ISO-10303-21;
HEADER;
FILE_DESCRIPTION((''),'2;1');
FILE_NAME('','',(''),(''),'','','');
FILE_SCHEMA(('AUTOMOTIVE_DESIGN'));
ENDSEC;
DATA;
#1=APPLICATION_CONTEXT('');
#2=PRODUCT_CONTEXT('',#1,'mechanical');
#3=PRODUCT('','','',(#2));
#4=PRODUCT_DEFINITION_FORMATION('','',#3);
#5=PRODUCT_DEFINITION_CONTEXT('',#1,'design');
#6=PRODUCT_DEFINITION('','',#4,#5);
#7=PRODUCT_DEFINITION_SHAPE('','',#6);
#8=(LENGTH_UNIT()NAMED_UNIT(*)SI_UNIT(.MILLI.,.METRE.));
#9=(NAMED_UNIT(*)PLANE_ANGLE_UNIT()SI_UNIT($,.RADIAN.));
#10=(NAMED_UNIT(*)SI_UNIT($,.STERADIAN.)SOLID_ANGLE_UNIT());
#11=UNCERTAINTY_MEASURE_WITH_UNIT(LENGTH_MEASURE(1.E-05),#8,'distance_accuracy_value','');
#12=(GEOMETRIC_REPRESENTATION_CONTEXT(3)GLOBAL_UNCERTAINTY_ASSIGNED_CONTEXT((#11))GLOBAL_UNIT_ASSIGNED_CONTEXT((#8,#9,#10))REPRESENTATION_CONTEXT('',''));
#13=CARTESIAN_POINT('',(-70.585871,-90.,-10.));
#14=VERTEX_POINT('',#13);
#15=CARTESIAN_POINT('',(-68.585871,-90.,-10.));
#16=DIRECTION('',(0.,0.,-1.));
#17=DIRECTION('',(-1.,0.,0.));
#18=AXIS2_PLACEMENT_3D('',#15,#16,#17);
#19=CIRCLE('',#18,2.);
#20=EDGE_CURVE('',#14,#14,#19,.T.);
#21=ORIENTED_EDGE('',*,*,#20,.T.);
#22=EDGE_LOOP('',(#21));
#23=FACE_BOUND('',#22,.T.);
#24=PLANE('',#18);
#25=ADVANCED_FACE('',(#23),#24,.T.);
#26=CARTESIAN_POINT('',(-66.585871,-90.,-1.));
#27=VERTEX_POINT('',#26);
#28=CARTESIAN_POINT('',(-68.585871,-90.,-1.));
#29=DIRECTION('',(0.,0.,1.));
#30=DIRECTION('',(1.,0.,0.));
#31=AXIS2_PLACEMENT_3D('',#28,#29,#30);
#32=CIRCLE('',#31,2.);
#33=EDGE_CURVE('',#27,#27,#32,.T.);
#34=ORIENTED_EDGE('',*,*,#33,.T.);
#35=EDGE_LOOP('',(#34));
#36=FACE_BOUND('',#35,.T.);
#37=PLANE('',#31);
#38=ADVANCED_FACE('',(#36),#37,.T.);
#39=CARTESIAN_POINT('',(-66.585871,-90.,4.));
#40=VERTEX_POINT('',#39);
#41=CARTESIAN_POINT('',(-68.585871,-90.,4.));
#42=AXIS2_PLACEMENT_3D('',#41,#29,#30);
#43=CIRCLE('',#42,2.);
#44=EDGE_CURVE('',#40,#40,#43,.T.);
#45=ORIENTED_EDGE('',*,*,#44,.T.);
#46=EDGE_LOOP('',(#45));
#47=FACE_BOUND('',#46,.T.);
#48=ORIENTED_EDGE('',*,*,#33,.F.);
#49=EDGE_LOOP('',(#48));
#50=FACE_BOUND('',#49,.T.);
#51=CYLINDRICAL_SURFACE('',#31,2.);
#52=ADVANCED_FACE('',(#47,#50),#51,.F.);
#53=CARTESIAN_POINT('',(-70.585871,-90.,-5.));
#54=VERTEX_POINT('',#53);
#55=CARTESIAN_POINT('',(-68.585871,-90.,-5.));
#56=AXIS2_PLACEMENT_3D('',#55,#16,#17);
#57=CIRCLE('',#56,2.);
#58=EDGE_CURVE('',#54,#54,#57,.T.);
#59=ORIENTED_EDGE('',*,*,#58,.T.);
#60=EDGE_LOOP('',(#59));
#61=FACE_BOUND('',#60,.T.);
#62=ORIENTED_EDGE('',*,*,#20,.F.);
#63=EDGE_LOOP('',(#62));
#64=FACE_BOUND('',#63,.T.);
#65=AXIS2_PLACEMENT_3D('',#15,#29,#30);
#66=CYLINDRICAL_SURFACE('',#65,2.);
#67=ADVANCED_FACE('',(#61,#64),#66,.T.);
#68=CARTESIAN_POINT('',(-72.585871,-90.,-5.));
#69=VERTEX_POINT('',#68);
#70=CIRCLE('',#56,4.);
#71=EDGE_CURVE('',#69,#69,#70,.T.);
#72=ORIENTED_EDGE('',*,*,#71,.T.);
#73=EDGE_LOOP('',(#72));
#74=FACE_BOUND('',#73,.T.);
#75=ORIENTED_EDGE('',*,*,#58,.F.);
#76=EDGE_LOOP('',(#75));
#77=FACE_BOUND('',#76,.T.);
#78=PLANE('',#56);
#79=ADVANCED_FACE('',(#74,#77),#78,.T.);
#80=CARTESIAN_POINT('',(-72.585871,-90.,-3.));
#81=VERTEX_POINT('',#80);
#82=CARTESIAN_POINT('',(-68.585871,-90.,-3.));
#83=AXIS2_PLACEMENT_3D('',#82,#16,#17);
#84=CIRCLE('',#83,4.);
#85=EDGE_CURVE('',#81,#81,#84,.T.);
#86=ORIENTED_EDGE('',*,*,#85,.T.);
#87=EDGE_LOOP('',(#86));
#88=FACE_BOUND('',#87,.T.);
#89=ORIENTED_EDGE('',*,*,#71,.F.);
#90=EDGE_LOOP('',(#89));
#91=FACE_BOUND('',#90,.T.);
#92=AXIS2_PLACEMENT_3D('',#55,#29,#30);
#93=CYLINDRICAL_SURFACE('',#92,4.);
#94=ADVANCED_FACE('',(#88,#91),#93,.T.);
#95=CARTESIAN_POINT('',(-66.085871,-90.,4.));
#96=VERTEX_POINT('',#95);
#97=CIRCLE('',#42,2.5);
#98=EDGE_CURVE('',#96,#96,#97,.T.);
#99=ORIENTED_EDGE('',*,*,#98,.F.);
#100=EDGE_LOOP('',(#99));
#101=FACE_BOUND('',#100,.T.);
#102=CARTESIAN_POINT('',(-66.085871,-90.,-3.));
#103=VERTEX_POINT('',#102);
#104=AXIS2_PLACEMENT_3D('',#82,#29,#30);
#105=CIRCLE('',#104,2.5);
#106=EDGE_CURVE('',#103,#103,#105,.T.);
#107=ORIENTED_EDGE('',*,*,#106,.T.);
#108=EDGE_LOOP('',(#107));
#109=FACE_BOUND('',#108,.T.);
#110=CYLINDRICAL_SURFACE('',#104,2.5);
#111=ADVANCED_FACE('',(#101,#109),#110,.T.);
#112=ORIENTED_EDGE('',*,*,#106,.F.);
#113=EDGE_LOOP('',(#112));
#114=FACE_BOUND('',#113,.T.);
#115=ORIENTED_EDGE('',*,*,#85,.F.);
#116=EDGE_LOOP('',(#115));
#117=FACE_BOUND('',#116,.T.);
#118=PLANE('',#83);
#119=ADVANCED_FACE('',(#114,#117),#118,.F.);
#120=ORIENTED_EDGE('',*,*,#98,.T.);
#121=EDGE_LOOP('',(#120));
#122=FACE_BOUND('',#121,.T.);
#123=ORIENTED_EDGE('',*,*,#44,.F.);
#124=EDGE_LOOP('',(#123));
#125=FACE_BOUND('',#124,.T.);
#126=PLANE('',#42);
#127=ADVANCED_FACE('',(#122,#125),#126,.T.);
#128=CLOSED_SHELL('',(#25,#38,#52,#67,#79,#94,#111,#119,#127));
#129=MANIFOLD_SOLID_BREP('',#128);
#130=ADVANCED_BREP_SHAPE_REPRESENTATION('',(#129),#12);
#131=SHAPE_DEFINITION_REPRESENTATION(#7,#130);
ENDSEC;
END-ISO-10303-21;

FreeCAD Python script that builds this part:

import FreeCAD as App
import Part
import Sketcher
from FreeCAD import Vector
Q = App.Units.Quantity

doc = App.newDocument("Part")
body = doc.addObject("PartDesign::Body", "Body")

sketch1 = doc.addObject("Sketcher::SketchObject", "Sketch")
body.addObject(sketch1)
sketch1.AttachmentSupport = (doc.XY_Plane, [""])
sketch1.MapMode = "FlatFace"
sketch1.addGeometry(Part.Circle(Vector(-68.6, -90, 0), Vector(0, 0, 1), 2.5), False)
sketch1.addConstraint(Sketcher.Constraint("Diameter", 0, Q("5 mm")))
sketch1.addConstraint(Sketcher.Constraint("DistanceY", 0, 3, -1, 1, Q("90 mm")))
sketch1.addConstraint(Sketcher.Constraint("DistanceX", 0, 3, -1, 1, Q("68.585871 mm")))
pad1 = doc.addObject("PartDesign::Pad", "Pad")
body.addObject(pad1)
pad1.Profile = sketch1
pad1.Type = "TwoLengths"
pad1.Length = 4
pad1.Length2 = 3

sketch2 = doc.addObject("Sketcher::SketchObject", "Sketch001")
body.addObject(sketch2)
sketch2.AttachmentSupport = (doc.XY_Plane, [""])
sketch2.MapMode = "FlatFace"
sketch2.AttachmentOffset = App.Placement(Vector(0, 0, -3), App.Rotation())
sketch2.addGeometry(Part.Circle(Vector(-68.6, -90, 0), Vector(0, 0, 1), 4), False)
sketch2.addConstraint(Sketcher.Constraint("Diameter", 0, Q("8 mm")))
sketch2.addConstraint(Sketcher.Constraint("DistanceY", 0, 3, -1, 1, Q("90 mm")))
sketch2.addConstraint(Sketcher.Constraint("DistanceX", 0, 3, -1, 1, Q("68.585871 mm")))
pad2 = doc.addObject("PartDesign::Pad", "Pad001")
body.addObject(pad2)
pad2.Profile = sketch2
pad2.Length = 2
pad2.Reversed = True

sketch3 = doc.addObject("Sketcher::SketchObject", "Sketch002")
body.addObject(sketch3)
sketch3.AttachmentSupport = (doc.XY_Plane, [""])
sketch3.MapMode = "FlatFace"
sketch3.AttachmentOffset = App.Placement(Vector(0, 0, 4), App.Rotation())
sketch3.addGeometry(Part.Circle(Vector(-68.6, -90, 0), Vector(0, 0, 1), 2), False)
sketch3.addConstraint(Sketcher.Constraint("Diameter", 0, Q("4 mm")))
sketch3.addConstraint(Sketcher.Constraint("DistanceY", 0, 3, -1, 1, Q("90 mm")))
sketch3.addConstraint(Sketcher.Constraint("DistanceX", 0, 3, -1, 1, Q("68.585871 mm")))
pocket1 = doc.addObject("PartDesign::Pocket", "Pocket")
body.addObject(pocket1)
pocket1.Profile = sketch3
pocket1.Length = 5

sketch4 = doc.addObject("Sketcher::SketchObject", "Sketch003")
body.addObject(sketch4)
sketch4.AttachmentSupport = (doc.XY_Plane, [""])
sketch4.MapMode = "FlatFace"
sketch4.AttachmentOffset = App.Placement(Vector(0, 0, -5), App.Rotation())
sketch4.addGeometry(Part.Circle(Vector(-68.6, -90, 0), Vector(0, 0, 1), 2), False)
sketch4.addConstraint(Sketcher.Constraint("Diameter", 0, Q("4 mm")))
sketch4.addConstraint(Sketcher.Constraint("DistanceY", 0, 3, -1, 1, Q("90 mm")))
sketch4.addConstraint(Sketcher.Constraint("DistanceX", 0, 3, -1, 1, Q("68.585871 mm")))
pad3 = doc.addObject("PartDesign::Pad", "Pad002")
body.addObject(pad3)
pad3.Profile = sketch4
pad3.Length = 5
pad3.Reversed = True

doc.recompute()
